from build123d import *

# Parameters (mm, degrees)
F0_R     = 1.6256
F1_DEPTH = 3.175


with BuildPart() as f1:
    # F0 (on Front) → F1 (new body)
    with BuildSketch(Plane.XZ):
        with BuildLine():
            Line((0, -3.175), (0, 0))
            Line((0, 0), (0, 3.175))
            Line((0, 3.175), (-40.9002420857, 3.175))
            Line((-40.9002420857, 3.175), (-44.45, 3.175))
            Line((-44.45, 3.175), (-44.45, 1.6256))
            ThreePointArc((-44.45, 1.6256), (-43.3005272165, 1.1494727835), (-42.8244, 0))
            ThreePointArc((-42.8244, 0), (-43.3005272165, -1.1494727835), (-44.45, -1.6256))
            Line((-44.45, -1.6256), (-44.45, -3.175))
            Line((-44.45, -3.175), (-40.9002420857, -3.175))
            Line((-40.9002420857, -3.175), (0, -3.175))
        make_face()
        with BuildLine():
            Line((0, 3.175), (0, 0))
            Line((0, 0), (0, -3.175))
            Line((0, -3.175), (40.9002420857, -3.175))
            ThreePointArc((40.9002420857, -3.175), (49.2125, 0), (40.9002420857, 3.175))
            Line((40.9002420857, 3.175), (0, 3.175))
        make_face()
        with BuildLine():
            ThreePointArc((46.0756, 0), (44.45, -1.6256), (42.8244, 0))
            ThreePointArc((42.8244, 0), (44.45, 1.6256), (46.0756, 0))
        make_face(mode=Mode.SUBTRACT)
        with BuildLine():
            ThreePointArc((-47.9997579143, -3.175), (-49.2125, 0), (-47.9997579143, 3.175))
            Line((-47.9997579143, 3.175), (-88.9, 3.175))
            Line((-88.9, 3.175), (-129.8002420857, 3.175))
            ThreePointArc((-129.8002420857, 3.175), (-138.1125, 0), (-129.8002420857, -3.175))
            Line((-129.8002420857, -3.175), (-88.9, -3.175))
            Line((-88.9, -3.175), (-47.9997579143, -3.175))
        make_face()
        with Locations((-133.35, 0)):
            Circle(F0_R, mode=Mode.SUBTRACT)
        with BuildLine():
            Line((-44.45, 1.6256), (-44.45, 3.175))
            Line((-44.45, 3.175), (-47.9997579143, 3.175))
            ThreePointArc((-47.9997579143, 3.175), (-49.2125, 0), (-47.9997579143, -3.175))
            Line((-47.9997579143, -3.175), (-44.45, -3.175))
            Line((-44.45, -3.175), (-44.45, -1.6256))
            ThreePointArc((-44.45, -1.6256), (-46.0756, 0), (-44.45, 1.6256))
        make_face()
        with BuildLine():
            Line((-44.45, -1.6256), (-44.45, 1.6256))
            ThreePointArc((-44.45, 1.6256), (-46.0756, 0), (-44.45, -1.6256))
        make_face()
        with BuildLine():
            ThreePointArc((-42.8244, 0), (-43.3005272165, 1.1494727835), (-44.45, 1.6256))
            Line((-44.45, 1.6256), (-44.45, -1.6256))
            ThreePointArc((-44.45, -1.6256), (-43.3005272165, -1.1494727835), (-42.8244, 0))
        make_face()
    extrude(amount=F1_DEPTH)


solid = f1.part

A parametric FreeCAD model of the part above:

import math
import FreeCAD as App
import Part
import Sketcher
from FreeCAD import Vector
Q = App.Units.Quantity

doc = App.newDocument("Part")
body = doc.addObject("PartDesign::Body", "Body")

sketch1 = body.newObject("Sketcher::SketchObject", "Sketch")
sketch1.AttachmentSupport = (doc.getObject("XZ_Plane"), [""])
sketch1.MapMode = "FlatFace"
sketch1.addGeometry(Part.LineSegment(Vector(40.900242, 3.175, 0), Vector(-129.800242, 3.175, 0)), False)
sketch1.addGeometry(Part.ArcOfCircle(Part.Circle(Vector(-133.35, 0, 0), Vector(0, 0, 1), 4.7625), math.radians(41.810315), math.radians(318.189685)), False)
sketch1.addGeometry(Part.LineSegment(Vector(-129.800242, -3.175, 0), Vector(40.900242, -3.175, 0)), False)
sketch1.addGeometry(Part.ArcOfCircle(Part.Circle(Vector(44.45, 0, 0), Vector(0, 0, 1), 4.7625), math.radians(-138.189685), math.radians(138.189685)), False)
sketch1.addGeometry(Part.Circle(Vector(44.45, 0, 0), Vector(0, 0, 1), 1.6256), False)
sketch1.addGeometry(Part.Circle(Vector(-133.35, 0, 0), Vector(0, 0, 1), 1.6256), False)
sketch1.addConstraint(Sketcher.Constraint("Coincident", 0, 2, 1, 1))
sketch1.addConstraint(Sketcher.Constraint("Coincident", 1, 2, 2, 1))
sketch1.addConstraint(Sketcher.Constraint("Coincident", 2, 2, 3, 1))
sketch1.addConstraint(Sketcher.Constraint("Coincident", 3, 2, 0, 1))
sketch1.addConstraint(Sketcher.Constraint("Horizontal", 0))
sketch1.addConstraint(Sketcher.Constraint("Horizontal", 2))
sketch1.addConstraint(Sketcher.Constraint("Coincident", 4, 3, 3, 3))
sketch1.addConstraint(Sketcher.Constraint("Coincident", 5, 3, 1, 3))
sketch1.addConstraint(Sketcher.Constraint("Equal", 1, 3))
sketch1.addConstraint(Sketcher.Constraint("Equal", 4, 5))
sketch1.addConstraint(Sketcher.Constraint("Symmetric", 0, 2, 1, 2, -1))
sketch1.addConstraint(Sketcher.Constraint("PointOnObject", 3, 3, -1))
sketch1.addConstraint(Sketcher.Constraint("Diameter", 4, Q("0.128 in")))
sketch1.addConstraint(Sketcher.Constraint("Radius", 1, Q("0.1875 in")))
sketch1.addConstraint(Sketcher.Constraint("DistanceX", 1, 3, 3, 3, Q("7 in")))
sketch1.addConstraint(Sketcher.Constraint("DistanceX", 1, 3, -1, 1, Q("5.25 in")))
sketch1.addConstraint(Sketcher.Constraint("DistanceY", 1, 2, 0, 2, Q("0.25 in")))
pad1 = body.newObject("PartDesign::Pad", "Pad")
pad1.Profile = sketch1
pad1.Length = Q("0.125 in")

doc.recompute()
